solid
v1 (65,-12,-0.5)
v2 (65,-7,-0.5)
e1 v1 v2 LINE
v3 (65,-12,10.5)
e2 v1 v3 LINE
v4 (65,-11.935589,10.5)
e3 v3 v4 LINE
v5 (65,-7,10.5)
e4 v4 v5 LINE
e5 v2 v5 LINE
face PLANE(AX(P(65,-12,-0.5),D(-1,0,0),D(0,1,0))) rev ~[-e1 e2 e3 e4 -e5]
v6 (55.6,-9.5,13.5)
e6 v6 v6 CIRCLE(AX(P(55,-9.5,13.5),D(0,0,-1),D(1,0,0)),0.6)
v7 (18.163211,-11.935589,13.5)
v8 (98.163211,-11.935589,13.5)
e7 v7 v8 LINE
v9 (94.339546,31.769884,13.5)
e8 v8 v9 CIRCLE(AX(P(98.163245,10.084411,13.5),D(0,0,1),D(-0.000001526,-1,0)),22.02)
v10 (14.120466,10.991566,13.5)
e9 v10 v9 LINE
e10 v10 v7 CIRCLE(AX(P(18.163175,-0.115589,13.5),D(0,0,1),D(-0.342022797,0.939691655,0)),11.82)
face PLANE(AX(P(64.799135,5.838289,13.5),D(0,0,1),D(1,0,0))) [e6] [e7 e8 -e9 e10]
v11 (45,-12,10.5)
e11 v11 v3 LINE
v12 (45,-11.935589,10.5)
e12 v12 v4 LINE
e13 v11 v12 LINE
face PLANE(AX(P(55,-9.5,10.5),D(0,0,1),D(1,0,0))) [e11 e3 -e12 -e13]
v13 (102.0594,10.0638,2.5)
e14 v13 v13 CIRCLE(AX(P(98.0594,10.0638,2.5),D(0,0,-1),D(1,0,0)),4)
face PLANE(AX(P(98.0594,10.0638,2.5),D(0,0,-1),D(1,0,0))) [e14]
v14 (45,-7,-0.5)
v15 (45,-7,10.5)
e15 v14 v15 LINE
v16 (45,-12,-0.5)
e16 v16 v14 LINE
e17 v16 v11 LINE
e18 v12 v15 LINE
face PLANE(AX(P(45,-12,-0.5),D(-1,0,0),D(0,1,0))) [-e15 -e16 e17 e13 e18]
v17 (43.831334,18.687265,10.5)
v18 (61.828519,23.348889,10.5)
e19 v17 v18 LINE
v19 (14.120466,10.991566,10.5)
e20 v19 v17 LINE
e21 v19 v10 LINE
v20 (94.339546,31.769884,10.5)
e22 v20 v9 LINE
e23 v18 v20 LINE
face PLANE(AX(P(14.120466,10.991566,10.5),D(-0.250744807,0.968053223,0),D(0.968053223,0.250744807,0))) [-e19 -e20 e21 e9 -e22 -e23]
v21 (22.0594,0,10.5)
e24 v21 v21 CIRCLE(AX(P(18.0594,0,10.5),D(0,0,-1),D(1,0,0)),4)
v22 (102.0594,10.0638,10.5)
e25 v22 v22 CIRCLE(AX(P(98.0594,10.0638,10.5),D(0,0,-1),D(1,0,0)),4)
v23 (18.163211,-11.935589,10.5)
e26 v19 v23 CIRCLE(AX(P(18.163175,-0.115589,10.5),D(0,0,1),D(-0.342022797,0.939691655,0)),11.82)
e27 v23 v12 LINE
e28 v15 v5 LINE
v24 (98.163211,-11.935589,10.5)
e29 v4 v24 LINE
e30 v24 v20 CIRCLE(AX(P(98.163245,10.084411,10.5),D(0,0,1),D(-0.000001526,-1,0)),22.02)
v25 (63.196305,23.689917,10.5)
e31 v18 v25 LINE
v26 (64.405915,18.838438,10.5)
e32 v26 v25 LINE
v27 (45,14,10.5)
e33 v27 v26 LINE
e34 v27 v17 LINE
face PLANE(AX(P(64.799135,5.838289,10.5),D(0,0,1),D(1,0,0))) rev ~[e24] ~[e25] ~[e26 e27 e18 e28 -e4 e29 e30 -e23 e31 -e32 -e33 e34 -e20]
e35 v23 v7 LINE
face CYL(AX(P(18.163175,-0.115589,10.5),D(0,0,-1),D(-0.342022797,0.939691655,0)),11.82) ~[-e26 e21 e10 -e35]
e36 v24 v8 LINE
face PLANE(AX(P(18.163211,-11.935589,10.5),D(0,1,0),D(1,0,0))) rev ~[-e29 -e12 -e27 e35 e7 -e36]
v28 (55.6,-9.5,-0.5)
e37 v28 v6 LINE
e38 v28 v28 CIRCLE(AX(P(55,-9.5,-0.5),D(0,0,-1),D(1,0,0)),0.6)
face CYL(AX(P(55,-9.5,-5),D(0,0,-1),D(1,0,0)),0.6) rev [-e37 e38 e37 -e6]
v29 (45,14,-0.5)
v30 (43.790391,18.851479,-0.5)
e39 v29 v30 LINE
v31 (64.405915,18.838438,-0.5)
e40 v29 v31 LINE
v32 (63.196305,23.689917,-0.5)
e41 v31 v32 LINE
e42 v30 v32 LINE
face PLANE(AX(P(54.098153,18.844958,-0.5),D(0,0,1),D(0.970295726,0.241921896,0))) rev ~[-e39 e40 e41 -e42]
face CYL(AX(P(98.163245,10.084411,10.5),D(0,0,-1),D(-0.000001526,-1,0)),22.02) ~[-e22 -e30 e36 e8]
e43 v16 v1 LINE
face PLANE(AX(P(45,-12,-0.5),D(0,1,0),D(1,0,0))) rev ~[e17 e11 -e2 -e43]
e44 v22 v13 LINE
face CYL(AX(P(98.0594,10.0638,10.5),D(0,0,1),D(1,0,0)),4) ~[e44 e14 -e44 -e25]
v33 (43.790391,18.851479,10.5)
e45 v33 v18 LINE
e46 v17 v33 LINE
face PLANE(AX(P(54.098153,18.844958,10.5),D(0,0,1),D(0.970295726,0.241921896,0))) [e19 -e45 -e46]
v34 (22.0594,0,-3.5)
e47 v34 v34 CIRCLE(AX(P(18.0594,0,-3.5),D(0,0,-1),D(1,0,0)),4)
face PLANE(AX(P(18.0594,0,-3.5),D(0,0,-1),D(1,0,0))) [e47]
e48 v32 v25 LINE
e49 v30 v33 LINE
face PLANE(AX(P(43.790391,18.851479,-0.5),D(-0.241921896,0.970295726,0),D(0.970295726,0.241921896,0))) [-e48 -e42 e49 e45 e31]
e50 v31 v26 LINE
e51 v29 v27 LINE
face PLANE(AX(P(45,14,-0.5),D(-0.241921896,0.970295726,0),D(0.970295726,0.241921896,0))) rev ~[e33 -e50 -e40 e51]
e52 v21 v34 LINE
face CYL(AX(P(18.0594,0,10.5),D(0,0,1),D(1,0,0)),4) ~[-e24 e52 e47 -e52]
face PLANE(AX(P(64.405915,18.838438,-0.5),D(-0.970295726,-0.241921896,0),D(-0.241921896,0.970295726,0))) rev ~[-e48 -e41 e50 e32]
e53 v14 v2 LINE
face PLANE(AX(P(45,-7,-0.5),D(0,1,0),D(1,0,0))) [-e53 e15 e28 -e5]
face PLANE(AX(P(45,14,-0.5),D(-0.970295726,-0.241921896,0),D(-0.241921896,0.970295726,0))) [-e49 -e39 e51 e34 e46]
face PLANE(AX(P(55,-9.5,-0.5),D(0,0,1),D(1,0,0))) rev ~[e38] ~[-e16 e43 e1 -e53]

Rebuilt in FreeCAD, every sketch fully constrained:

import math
import FreeCAD as App
import Part
import Sketcher
from FreeCAD import Vector
Q = App.Units.Quantity

doc = App.newDocument("Part")
body = doc.addObject("PartDesign::Body", "Body")

sketch1 = doc.addObject("Sketcher::SketchObject", "Sketch")
body.addObject(sketch1)
sketch1.AttachmentSupport = (doc.XY_Plane, [""])
sketch1.MapMode = "FlatFace"
sketch1.AttachmentOffset = App.Placement(Vector(0, 0, -5), App.Rotation())
sketch1.addGeometry(Part.Circle(Vector(55, -9.5, 0), Vector(0, 0, 1), 0.6), False)
sketch1.addConstraint([
    Sketcher.Constraint("Diameter", 0, Q("1.2 mm")),
    Sketcher.Constraint("DistanceX", -1, 1, 0, 3, Q("55 mm")),
    Sketcher.Constraint("DistanceY", 0, 3, -1, 1, Q("9.5 mm")),
])
pad1 = doc.addObject("PartDesign::Pad", "Pad")
body.addObject(pad1)
pad1.Profile = sketch1
pad1.Length = 20
body2 = doc.addObject("PartDesign::Body", "Body001")

sketch2 = doc.addObject("Sketcher::SketchObject", "Sketch001")
body2.addObject(sketch2)
sketch2.AttachmentSupport = (doc.getObject("XY_Plane001"), [""])
sketch2.MapMode = "FlatFace"
sketch2.AttachmentOffset = App.Placement(Vector(0, 0, -0.5), App.Rotation())
sketch2.addGeometry([
    Part.LineSegment(Vector(45, -7, 0), Vector(45, -12, 0)),
    Part.LineSegment(Vector(45, -12, 0), Vector(65, -12, 0)),
    Part.LineSegment(Vector(65, -12, 0), Vector(65, -7, 0)),
    Part.LineSegment(Vector(65, -7, 0), Vector(45, -7, 0)),
], False)
sketch2.addConstraint([
    Sketcher.Constraint("Coincident", 0, 2, 1, 1),
    Sketcher.Constraint("Coincident", 1, 2, 2, 1),
    Sketcher.Constraint("Coincident", 2, 2, 3, 1),
    Sketcher.Constraint("Coincident", 3, 2, 0, 1),
    Sketcher.Constraint("Vertical", 0),
    Sketcher.Constraint("Horizontal", 1),
    Sketcher.Constraint("Vertical", 2),
    Sketcher.Constraint("Horizontal", 3),
    Sketcher.Constraint("DistanceX", 1, 1, 1, 2, Q("20 mm")),
    Sketcher.Constraint("DistanceY", 0, 2, 0, 1, Q("5 mm")),
    Sketcher.Constraint("DistanceX", -1, 1, 0, 2, Q("45 mm")),
    Sketcher.Constraint("DistanceY", 0, 2, -1, 1, Q("12 mm")),
])
pad2 = doc.addObject("PartDesign::Pad", "Pad001")
body2.addObject(pad2)
pad2.Profile = sketch2
pad2.Length = 11
body3 = doc.addObject("PartDesign::Body", "Body002")

sketch3 = doc.addObject("Sketcher::SketchObject", "Sketch002")
body3.addObject(sketch3)
sketch3.AttachmentSupport = (doc.getObject("XY_Plane002"), [""])
sketch3.MapMode = "FlatFace"
sketch3.AttachmentOffset = App.Placement(Vector(0, 0, 10.5), App.Rotation())
sketch3.addGeometry([
    Part.ArcOfCircle(Part.Circle(Vector(18.163175, -0.115589, 0), Vector(0, 0, 1), 11.82), math.radians(110.000162), math.radians(270.000173)),
    Part.LineSegment(Vector(18.163211, -11.935589, 0), Vector(98.163211, -11.935589, 0)),
    Part.ArcOfCircle(Part.Circle(Vector(98.163245, 10.084411, 0), Vector(0, 0, 1), 22.02), math.radians(-90.000087), math.radians(99.999909)),
    Part.LineSegment(Vector(94.339546, 31.769884, 0), Vector(14.120466, 10.991566, 0)),
], False)
sketch3.addConstraint([
    Sketcher.Constraint("Coincident", 0, 2, 1, 1),
    Sketcher.Constraint("Coincident", 1, 2, 2, 1),
    Sketcher.Constraint("Coincident", 2, 2, 3, 1),
    Sketcher.Constraint("Coincident", 3, 2, 0, 1),
    Sketcher.Constraint("Horizontal", 1),
    Sketcher.Constraint("DistanceX", 1, 1, 1, 2, Q("80 mm")),
    Sketcher.Constraint("Radius", 0, Q("11.82 mm")),
    Sketcher.Constraint("Radius", 2, Q("22.02 mm")),
    Sketcher.Constraint("DistanceX", 2, 2, 2, 3, Q("3.823699 mm")),
    Sketcher.Constraint("DistanceY", 0, 3, -1, 1, Q("0.115589 mm")),
    Sketcher.Constraint("DistanceX", -1, 1, 0, 2, Q("18.163211 mm")),
    Sketcher.Constraint("DistanceX", 0, 3, 2, 3, Q("80.000069 mm")),
    Sketcher.Constraint("DistanceX", 3, 2, 0, 3, Q("4.042709 mm")),
    Sketcher.Constraint("DistanceX", -1, 1, 0, 3, Q("18.163175 mm")),
])
pad3 = doc.addObject("PartDesign::Pad", "Pad002")
body3.addObject(pad3)
pad3.Profile = sketch3
pad3.Length = 3

sketch4 = doc.addObject("Sketcher::SketchObject", "Sketch003")
body3.addObject(sketch4)
sketch4.AttachmentSupport = (doc.getObject("XY_Plane002"), [""])
sketch4.MapMode = "FlatFace"
sketch4.AttachmentOffset = App.Placement(Vector(0, 0, 10.5), App.Rotation())
sketch4.addGeometry(Part.Circle(Vector(98.1, 10.1, 0), Vector(0, 0, 1), 4), False)
sketch4.addConstraint([
    Sketcher.Constraint("Diameter", 0, Q("8 mm")),
    Sketcher.Constraint("DistanceX", -1, 1, 0, 3, Q("98.0594 mm")),
    Sketcher.Constraint("DistanceY", -1, 1, 0, 3, Q("10.0638 mm")),
])
pad4 = doc.addObject("PartDesign::Pad", "Pad003")
body3.addObject(pad4)
pad4.Profile = sketch4
pad4.Length = 8
pad4.Reversed = True

sketch5 = doc.addObject("Sketcher::SketchObject", "Sketch004")
body3.addObject(sketch5)
sketch5.AttachmentSupport = (doc.getObject("XY_Plane002"), [""])
sketch5.MapMode = "FlatFace"
sketch5.AttachmentOffset = App.Placement(Vector(0, 0, 10.5), App.Rotation())
sketch5.addGeometry(Part.Circle(Vector(18.1, 0, 0), Vector(0, 0, 1), 4), False)
sketch5.addConstraint([
    Sketcher.Constraint("PointOnObject", 0, 3, -1),
    Sketcher.Constraint("Diameter", 0, Q("8 mm")),
    Sketcher.Constraint("DistanceX", -1, 1, 0, 3, Q("18.0594 mm")),
])
pad5 = doc.addObject("PartDesign::Pad", "Pad004")
body3.addObject(pad5)
pad5.Profile = sketch5
pad5.Length = 14
pad5.Reversed = True
body4 = doc.addObject("PartDesign::Body", "Body003")

sketch6 = doc.addObject("Sketcher::SketchObject", "Sketch005")
body4.addObject(sketch6)
sketch6.AttachmentSupport = (doc.getObject("XY_Plane003"), [""])
sketch6.MapMode = "FlatFace"
sketch6.addGeometry([
    Part.LineSegment(Vector(0, 5, 0), Vector(0, 0, 0)),
    Part.LineSegment(Vector(0, 0, 0), Vector(20, 0, 0)),
    Part.LineSegment(Vector(20, 0, 0), Vector(20, 5, 0)),
    Part.LineSegment(Vector(20, 5, 0), Vector(0, 5, 0)),
], False)
sketch6.addConstraint([
    Sketcher.Constraint("Coincident", 0, 2, 1, 1),
    Sketcher.Constraint("Coincident", 1, 2, 2, 1),
    Sketcher.Constraint("Coincident", 2, 2, 3, 1),
    Sketcher.Constraint("Coincident", 3, 2, 0, 1),
    Sketcher.Constraint("Vertical", 0),
    Sketcher.Constraint("Horizontal", 1),
    Sketcher.Constraint("Vertical", 2),
    Sketcher.Constraint("Horizontal", 3),
    Sketcher.Constraint("Coincident", 0, 2, -1, 1),
    Sketcher.Constraint("DistanceX", 1, 1, 1, 2, Q("20 mm")),
    Sketcher.Constraint("DistanceY", 0, 2, 0, 1, Q("5 mm")),
])
pad6 = doc.addObject("PartDesign::Pad", "Pad005")
body4.addObject(pad6)
pad6.Profile = sketch6
pad6.Length = 11
body5 = doc.addObject("PartDesign::Body", "Body004")
body5.AllowCompound = True
doc.recompute()

body4.Placement = App.Placement(Vector(45, 14, -0.5), App.Rotation(Vector(0, 0, 1), 14))
boolean = doc.addObject("PartDesign::Boolean", "Boolean")
body5.addObject(boolean)
boolean.Type = "Fuse"
boolean.addObjects([body4])
doc.recompute()

boolean2 = doc.addObject("PartDesign::Boolean", "Boolean001")
body5.addObject(boolean2)
boolean2.Type = "Fuse"
boolean2.addObjects([body2])
doc.recompute()

boolean3 = doc.addObject("PartDesign::Boolean", "Boolean002")
body5.addObject(boolean3)
boolean3.Type = "Fuse"
boolean3.addObjects([body3])
doc.recompute()

boolean4 = doc.addObject("PartDesign::Boolean", "Boolean003")
body5.addObject(boolean4)
boolean4.Type = "Cut"
boolean4.addObjects([body])

doc.recompute()
